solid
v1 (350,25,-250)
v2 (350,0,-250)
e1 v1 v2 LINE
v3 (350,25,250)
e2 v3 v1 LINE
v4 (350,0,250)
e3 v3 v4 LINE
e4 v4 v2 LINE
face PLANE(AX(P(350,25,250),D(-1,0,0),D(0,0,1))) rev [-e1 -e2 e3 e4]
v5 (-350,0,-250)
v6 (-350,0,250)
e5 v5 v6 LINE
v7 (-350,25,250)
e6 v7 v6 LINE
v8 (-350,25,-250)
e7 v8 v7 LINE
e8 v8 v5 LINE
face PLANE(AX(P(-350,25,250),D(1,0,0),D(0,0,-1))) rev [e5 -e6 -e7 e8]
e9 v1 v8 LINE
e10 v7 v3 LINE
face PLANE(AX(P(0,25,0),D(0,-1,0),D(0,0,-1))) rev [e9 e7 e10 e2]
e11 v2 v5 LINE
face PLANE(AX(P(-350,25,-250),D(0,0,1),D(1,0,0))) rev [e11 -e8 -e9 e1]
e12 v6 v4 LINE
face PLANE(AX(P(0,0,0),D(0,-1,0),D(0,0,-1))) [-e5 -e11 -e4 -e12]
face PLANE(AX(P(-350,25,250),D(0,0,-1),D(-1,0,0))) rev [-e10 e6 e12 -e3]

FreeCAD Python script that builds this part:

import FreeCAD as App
import Part
import Sketcher
from FreeCAD import Vector

doc = App.newDocument("Part")
body = doc.addObject("PartDesign::Body", "Body")

# Sketch on XZ plane
sketch1 = body.newObject("Sketcher::SketchObject", "Sketch")
sketch1.AttachmentSupport = (doc.getObject("XZ_Plane"), [""])
sketch1.MapMode = "FlatFace"
sketch1.addGeometry(Part.LineSegment(Vector(-350, -250, 0), Vector(-350, 250, 0)), False)
sketch1.addGeometry(Part.LineSegment(Vector(-350, 250, 0), Vector(350, 250, 0)), False)
sketch1.addGeometry(Part.LineSegment(Vector(350, 250, 0), Vector(350, -250, 0)), False)
sketch1.addGeometry(Part.LineSegment(Vector(350, -250, 0), Vector(-350, -250, 0)), False)
sketch1.addConstraint(Sketcher.Constraint("Coincident", 0, 2, 1, 1))
sketch1.addConstraint(Sketcher.Constraint("Coincident", 1, 2, 2, 1))
sketch1.addConstraint(Sketcher.Constraint("Coincident", 2, 2, 3, 1))
sketch1.addConstraint(Sketcher.Constraint("Coincident", 3, 2, 0, 1))
sketch1.addConstraint(Sketcher.Constraint("Vertical", 0))
sketch1.addConstraint(Sketcher.Constraint("Horizontal", 1))
sketch1.addConstraint(Sketcher.Constraint("Vertical", 2))
sketch1.addConstraint(Sketcher.Constraint("Horizontal", 3))
sketch1.addConstraint(Sketcher.Constraint("Symmetric", 0, 2, 2, 2, -1, 1))
sketch1.addConstraint(Sketcher.Constraint("DistanceX", 1, 1, 1, 2, 700.0))
sketch1.addConstraint(Sketcher.Constraint("DistanceY", 0, 1, 0, 2, 500.0))
pad1 = body.newObject("PartDesign::Pad", "Pad")
pad1.Profile = sketch1
pad1.Length = 25
pad1.Reversed = True

doc.recompute()
